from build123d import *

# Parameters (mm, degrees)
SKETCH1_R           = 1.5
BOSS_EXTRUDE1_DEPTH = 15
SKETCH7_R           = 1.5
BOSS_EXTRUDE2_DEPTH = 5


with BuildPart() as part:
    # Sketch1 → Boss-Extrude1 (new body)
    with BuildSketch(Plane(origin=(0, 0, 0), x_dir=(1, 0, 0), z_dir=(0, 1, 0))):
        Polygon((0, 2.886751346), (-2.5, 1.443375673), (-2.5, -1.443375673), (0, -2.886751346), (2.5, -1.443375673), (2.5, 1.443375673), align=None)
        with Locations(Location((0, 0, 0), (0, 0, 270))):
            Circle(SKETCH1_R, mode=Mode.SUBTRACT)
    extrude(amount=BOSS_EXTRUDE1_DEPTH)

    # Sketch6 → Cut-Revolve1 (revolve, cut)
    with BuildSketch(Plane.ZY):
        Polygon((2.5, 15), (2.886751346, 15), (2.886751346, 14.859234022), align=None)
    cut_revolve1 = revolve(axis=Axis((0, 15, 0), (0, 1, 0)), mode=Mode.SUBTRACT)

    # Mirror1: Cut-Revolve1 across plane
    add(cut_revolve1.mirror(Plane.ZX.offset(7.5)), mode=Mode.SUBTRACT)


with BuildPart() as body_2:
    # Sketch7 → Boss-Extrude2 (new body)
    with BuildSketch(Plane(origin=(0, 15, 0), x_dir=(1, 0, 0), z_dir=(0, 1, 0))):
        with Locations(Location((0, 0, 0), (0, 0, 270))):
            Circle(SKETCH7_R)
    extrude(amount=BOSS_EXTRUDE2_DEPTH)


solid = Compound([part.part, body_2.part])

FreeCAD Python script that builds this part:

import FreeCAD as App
import Part
import Sketcher
from FreeCAD import Vector
Q = App.Units.Quantity


def add_polygon(sketch, points):
    """Adds a closed chain of lines whose ends are joined by coincident constraints."""
    first, n = sketch.GeometryCount, len(points)
    for a, b in zip(points, points[1:] + points[:1]):
        sketch.addGeometry(Part.LineSegment(App.Vector(*a, 0), App.Vector(*b, 0)), False)
    for i in range(n):
        sketch.addConstraint(Sketcher.Constraint("Coincident", first + i, 2, first + (i + 1) % n, 1))

doc = App.newDocument("Part")
params = doc.addObject("Spreadsheet::Sheet", "Params")
for row, (alias, value) in enumerate([
    ("sketch1_diameter", "3 mm"),
    ("pad1_length", "15 mm"),
    ("groove_angle", "360 deg"),
    ("sketch3_diameter", "3 mm"),
    ("pad2_length", "5 mm"),
], start=1):
    params.set(f"A{row}", alias)
    params.set(f"B{row}", "=" + value)
    params.setAlias(f"B{row}", alias)

body = doc.addObject("PartDesign::Body", "Body")

sketch1 = body.newObject("Sketcher::SketchObject", "Sketch")
sketch1.AttachmentSupport = (doc.getObject("XZ_Plane"), [""])
sketch1.MapMode = "FlatFace"
add_polygon(sketch1, [(0, -2.9), (-2.5, -1.4), (-2.5, 1.4), (0, 2.9), (2.5, 1.4), (2.5, -1.4)])
sketch1.addGeometry(Part.Circle(Vector(0, 0, 0), Vector(0, 0, 1), 1.5), False)
sketch1.addConstraint(Sketcher.Constraint("Vertical", 1))
sketch1.addConstraint(Sketcher.Constraint("Vertical", 4))
sketch1.addConstraint(Sketcher.Constraint("Coincident", 6, 3, -1, 1))
sketch1.addConstraint(Sketcher.Constraint("Symmetric", 0, 2, 3, 2, -1, 1))
sketch1.addConstraint(Sketcher.Constraint("Symmetric", 2, 2, 5, 2, -1, 1))
sketch1.addConstraint(Sketcher.Constraint("PointOnObject", 2, 2, -2))
sketch1.addConstraint(Sketcher.Constraint("Parallel", 2, 5))
sketch1.addConstraint(Sketcher.Constraint("Horizontal", 1, 2, 3, 2))
sketch1.addConstraint(Sketcher.Constraint("Diameter", 6, 3.0))
sketch1.addConstraint(Sketcher.Constraint("Angle", 0, Q("150 deg")))
sketch1.addConstraint(Sketcher.Constraint("DistanceX", 1, 2, 3, 2, 5.0))
sketch1.addConstraint(Sketcher.Constraint("DistanceY", 1, 1, 1, 2, 2.886751))
sketch1.setExpression("Constraints[14]", "Params.sketch1_diameter")
pad1 = body.newObject("PartDesign::Pad", "Pad")
pad1.Profile = sketch1
pad1.setExpression("Length", "Params.pad1_length")
pad1.Reversed = True

sketch2 = body.newObject("Sketcher::SketchObject", "Sketch001")
sketch2.AttachmentSupport = (doc.getObject("YZ_Plane"), [""])
sketch2.MapMode = "FlatFace"
add_polygon(sketch2, [(15, 2.89), (15, 2.5), (14.86, 2.89)])
sketch2.addConstraint(Sketcher.Constraint("Vertical", 0))
sketch2.addConstraint(Sketcher.Constraint("Horizontal", 2))
sketch2.addConstraint(Sketcher.Constraint("Angle", 1, Q("110 deg")))
sketch2.addConstraint(Sketcher.Constraint("DistanceX", -1, 1, 0, 2, 15.0))
sketch2.addConstraint(Sketcher.Constraint("DistanceY", -1, 1, 0, 2, 2.5))
sketch2.addConstraint(Sketcher.Constraint("DistanceY", 0, 2, 0, 1, 0.386751))
groove = body.newObject("PartDesign::Groove", "Groove")
groove.Profile = sketch2
groove.ReferenceAxis = (sketch2, ["H_Axis"])
groove.setExpression("Angle", "Params.groove_angle")
doc.recompute()

datumplane = body.newObject("PartDesign::Plane", "DatumPlane")
datumplane.AttachmentSupport = (doc.getObject("XZ_Plane"), [""])
datumplane.MapMode = "FlatFace"
datumplane.AttachmentOffset = App.Placement(Vector(0, 0, -7.5), App.Rotation())
mirrored = body.newObject("PartDesign::Mirrored", "Mirrored")
mirrored.Originals = [groove]
mirrored.MirrorPlane = (datumplane, [""])
body.Tip = mirrored
body2 = doc.addObject("PartDesign::Body", "Body001")

sketch3 = body2.newObject("Sketcher::SketchObject", "Sketch002")
sketch3.AttachmentSupport = (doc.getObject("XZ_Plane001"), [""])
sketch3.MapMode = "FlatFace"
sketch3.AttachmentOffset = App.Placement(Vector(0, 0, -15), App.Rotation())
sketch3.addGeometry(Part.Circle(Vector(0, 0, 0), Vector(0, 0, 1), 1.5), False)
sketch3.addConstraint(Sketcher.Constraint("Coincident", 0, 3, -1, 1))
sketch3.addConstraint(Sketcher.Constraint("Diameter", 0, 3.0))
sketch3.setExpression("Constraints[1]", "Params.sketch3_diameter")
pad2 = body2.newObject("PartDesign::Pad", "Pad001")
pad2.Profile = sketch3
pad2.setExpression("Length", "Params.pad2_length")
pad2.Reversed = True

doc.recompute()
